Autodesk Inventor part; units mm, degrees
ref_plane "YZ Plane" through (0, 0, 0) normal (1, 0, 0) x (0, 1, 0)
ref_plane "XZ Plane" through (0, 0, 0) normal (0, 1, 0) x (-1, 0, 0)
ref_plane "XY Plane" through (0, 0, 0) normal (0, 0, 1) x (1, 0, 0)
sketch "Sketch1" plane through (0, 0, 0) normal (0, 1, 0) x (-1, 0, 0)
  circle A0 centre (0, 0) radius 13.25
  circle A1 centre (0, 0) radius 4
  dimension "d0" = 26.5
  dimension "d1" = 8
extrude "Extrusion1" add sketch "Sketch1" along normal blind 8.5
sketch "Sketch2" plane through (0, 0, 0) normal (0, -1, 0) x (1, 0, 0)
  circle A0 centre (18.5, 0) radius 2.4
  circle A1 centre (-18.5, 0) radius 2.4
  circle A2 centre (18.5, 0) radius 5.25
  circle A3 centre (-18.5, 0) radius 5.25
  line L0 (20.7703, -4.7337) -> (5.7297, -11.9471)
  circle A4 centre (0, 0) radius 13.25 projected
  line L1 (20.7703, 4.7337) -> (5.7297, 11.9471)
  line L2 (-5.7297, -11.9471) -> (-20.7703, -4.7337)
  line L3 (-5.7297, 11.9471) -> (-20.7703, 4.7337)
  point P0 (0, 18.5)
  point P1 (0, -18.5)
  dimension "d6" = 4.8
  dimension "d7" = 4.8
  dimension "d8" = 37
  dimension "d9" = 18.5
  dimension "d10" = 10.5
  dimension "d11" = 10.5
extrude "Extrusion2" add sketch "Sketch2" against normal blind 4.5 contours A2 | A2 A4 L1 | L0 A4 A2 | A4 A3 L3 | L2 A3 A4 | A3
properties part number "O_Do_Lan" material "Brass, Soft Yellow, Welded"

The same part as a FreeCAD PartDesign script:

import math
import FreeCAD as App
import Part
import Sketcher

V = App.Vector
Q = App.Units.Quantity

doc = App.newDocument("Part")
params = doc.addObject("Spreadsheet::Sheet", "Params")
for row, (alias, value) in enumerate([
    ("sketch1_diameter", "8 mm"),
    ("sketch1_diameter2", "26.5 mm"),
    ("pad1_length", "8.5 mm"),
    ("sketch2_diameter", "4.8 mm"),
    ("sketch2_radius", "5.25 mm"),
    ("sketch2_radius2", "13.25 mm"),
    ("pad2_length", "4.5 mm"),
], start=1):
    params.set(f"A{row}", alias)
    params.set(f"B{row}", "=" + value)
    params.setAlias(f"B{row}", alias)

body = doc.addObject("PartDesign::Body", "Body")

# Sketch on XZ plane
sketch1 = body.newObject("Sketcher::SketchObject", "Sketch")
sketch1.AttachmentSupport = (doc.getObject("XZ_Plane"), [""])
sketch1.MapMode = "FlatFace"
sketch1.addGeometry([
    Part.Circle(V(0, 0, 0), V(0, 0, 1), 13.25),
    Part.Circle(V(0, 0, 0), V(0, 0, 1), 4),
], False)
sketch1.addConstraint([
    Sketcher.Constraint("Coincident", 0, 3, -1, 1),
    Sketcher.Constraint("Coincident", 1, 3, -1, 1),
    Sketcher.Constraint("Diameter", 1, Q("8 mm")),
    Sketcher.Constraint("Diameter", 0, Q("26.5 mm")),
])
sketch1.setExpression("Constraints[2]", "Params.sketch1_diameter")
sketch1.setExpression("Constraints[3]", "Params.sketch1_diameter2")
pad1 = body.newObject("PartDesign::Pad", "Pad")
pad1.Profile = sketch1
pad1.setExpression("Length", "Params.pad1_length")
pad1.Reversed = True

# Sketch on XZ plane
sketch2 = body.newObject("Sketcher::SketchObject", "Sketch001")
sketch2.AttachmentSupport = (doc.getObject("XZ_Plane"), [""])
sketch2.MapMode = "FlatFace"
sketch2.addGeometry([
    Part.ArcOfCircle(Part.Circle(V(18.5, 0, 0), V(0, 0, 1), 5.25), math.radians(-64.377452), math.radians(64.377452)),  # 0
    Part.LineSegment(V(20.7703, 4.7337, 0), V(5.7297, 11.9471, 0)),  # 1
    Part.ArcOfCircle(Part.Circle(V(0, 0, 0), V(0, 0, 1), 13.25), math.radians(-64.378127), math.radians(64.378127)),  # 2
    Part.LineSegment(V(5.7297, -11.9471, 0), V(20.7703, -4.7337, 0)),  # 3
    Part.Circle(V(18.5, 0, 0), V(0, 0, 1), 2.4),  # 4
    Part.LineSegment(V(-5.7297, 11.9471, 0), V(-20.7703, 4.7337, 0)),  # 5
    Part.ArcOfCircle(Part.Circle(V(-18.5, 0, 0), V(0, 0, 1), 5.25), math.radians(115.622548), math.radians(244.377452)),  # 6
    Part.LineSegment(V(-20.7703, -4.7337, 0), V(-5.7297, -11.9471, 0)),  # 7
    Part.ArcOfCircle(Part.Circle(V(0, 0, 0), V(0, 0, 1), 13.25), math.radians(115.621873), math.radians(244.378127)),  # 8
    Part.Circle(V(-18.5, 0, 0), V(0, 0, 1), 2.4),  # 9
], False)
sketch2.addConstraint([
    Sketcher.Constraint("Tangent", 0, 2, 1, 1),
    Sketcher.Constraint("Tangent", 1, 2, 2, 2),
    Sketcher.Constraint("Tangent", 2, 1, 3, 1),
    Sketcher.Constraint("Tangent", 3, 2, 0, 1),
    Sketcher.Constraint("Tangent", 5, 2, 6, 1),
    Sketcher.Constraint("Tangent", 6, 2, 7, 1),
    Sketcher.Constraint("Tangent", 7, 2, 8, 2),
    Sketcher.Constraint("Tangent", 8, 1, 5, 1),
    Sketcher.Constraint("Coincident", 2, 3, -1, 1),
    Sketcher.Constraint("Coincident", 8, 3, -1, 1),
    Sketcher.Constraint("Coincident", 4, 3, 0, 3),
    Sketcher.Constraint("Coincident", 9, 3, 6, 3),
    Sketcher.Constraint("Equal", 0, 6),
    Sketcher.Constraint("Equal", 2, 8),
    Sketcher.Constraint("Equal", 4, 9),
    Sketcher.Constraint("Symmetric", 0, 3, 6, 3, -1, 1),
    Sketcher.Constraint("PointOnObject", 0, 3, -1),
    Sketcher.Constraint("Diameter", 4, Q("4.8 mm")),
    Sketcher.Constraint("Radius", 0, Q("5.25 mm")),
    Sketcher.Constraint("DistanceX", 6, 3, 0, 3, Q("37 mm")),
    Sketcher.Constraint("Radius", 2, Q("13.25 mm")),
])
sketch2.setExpression("Constraints[17]", "Params.sketch2_diameter")
sketch2.setExpression("Constraints[18]", "Params.sketch2_radius")
sketch2.setExpression("Constraints[20]", "Params.sketch2_radius2")
pad2 = body.newObject("PartDesign::Pad", "Pad001")
pad2.Profile = sketch2
pad2.setExpression("Length", "Params.pad2_length")
pad2.Reversed = True

doc.recompute()
